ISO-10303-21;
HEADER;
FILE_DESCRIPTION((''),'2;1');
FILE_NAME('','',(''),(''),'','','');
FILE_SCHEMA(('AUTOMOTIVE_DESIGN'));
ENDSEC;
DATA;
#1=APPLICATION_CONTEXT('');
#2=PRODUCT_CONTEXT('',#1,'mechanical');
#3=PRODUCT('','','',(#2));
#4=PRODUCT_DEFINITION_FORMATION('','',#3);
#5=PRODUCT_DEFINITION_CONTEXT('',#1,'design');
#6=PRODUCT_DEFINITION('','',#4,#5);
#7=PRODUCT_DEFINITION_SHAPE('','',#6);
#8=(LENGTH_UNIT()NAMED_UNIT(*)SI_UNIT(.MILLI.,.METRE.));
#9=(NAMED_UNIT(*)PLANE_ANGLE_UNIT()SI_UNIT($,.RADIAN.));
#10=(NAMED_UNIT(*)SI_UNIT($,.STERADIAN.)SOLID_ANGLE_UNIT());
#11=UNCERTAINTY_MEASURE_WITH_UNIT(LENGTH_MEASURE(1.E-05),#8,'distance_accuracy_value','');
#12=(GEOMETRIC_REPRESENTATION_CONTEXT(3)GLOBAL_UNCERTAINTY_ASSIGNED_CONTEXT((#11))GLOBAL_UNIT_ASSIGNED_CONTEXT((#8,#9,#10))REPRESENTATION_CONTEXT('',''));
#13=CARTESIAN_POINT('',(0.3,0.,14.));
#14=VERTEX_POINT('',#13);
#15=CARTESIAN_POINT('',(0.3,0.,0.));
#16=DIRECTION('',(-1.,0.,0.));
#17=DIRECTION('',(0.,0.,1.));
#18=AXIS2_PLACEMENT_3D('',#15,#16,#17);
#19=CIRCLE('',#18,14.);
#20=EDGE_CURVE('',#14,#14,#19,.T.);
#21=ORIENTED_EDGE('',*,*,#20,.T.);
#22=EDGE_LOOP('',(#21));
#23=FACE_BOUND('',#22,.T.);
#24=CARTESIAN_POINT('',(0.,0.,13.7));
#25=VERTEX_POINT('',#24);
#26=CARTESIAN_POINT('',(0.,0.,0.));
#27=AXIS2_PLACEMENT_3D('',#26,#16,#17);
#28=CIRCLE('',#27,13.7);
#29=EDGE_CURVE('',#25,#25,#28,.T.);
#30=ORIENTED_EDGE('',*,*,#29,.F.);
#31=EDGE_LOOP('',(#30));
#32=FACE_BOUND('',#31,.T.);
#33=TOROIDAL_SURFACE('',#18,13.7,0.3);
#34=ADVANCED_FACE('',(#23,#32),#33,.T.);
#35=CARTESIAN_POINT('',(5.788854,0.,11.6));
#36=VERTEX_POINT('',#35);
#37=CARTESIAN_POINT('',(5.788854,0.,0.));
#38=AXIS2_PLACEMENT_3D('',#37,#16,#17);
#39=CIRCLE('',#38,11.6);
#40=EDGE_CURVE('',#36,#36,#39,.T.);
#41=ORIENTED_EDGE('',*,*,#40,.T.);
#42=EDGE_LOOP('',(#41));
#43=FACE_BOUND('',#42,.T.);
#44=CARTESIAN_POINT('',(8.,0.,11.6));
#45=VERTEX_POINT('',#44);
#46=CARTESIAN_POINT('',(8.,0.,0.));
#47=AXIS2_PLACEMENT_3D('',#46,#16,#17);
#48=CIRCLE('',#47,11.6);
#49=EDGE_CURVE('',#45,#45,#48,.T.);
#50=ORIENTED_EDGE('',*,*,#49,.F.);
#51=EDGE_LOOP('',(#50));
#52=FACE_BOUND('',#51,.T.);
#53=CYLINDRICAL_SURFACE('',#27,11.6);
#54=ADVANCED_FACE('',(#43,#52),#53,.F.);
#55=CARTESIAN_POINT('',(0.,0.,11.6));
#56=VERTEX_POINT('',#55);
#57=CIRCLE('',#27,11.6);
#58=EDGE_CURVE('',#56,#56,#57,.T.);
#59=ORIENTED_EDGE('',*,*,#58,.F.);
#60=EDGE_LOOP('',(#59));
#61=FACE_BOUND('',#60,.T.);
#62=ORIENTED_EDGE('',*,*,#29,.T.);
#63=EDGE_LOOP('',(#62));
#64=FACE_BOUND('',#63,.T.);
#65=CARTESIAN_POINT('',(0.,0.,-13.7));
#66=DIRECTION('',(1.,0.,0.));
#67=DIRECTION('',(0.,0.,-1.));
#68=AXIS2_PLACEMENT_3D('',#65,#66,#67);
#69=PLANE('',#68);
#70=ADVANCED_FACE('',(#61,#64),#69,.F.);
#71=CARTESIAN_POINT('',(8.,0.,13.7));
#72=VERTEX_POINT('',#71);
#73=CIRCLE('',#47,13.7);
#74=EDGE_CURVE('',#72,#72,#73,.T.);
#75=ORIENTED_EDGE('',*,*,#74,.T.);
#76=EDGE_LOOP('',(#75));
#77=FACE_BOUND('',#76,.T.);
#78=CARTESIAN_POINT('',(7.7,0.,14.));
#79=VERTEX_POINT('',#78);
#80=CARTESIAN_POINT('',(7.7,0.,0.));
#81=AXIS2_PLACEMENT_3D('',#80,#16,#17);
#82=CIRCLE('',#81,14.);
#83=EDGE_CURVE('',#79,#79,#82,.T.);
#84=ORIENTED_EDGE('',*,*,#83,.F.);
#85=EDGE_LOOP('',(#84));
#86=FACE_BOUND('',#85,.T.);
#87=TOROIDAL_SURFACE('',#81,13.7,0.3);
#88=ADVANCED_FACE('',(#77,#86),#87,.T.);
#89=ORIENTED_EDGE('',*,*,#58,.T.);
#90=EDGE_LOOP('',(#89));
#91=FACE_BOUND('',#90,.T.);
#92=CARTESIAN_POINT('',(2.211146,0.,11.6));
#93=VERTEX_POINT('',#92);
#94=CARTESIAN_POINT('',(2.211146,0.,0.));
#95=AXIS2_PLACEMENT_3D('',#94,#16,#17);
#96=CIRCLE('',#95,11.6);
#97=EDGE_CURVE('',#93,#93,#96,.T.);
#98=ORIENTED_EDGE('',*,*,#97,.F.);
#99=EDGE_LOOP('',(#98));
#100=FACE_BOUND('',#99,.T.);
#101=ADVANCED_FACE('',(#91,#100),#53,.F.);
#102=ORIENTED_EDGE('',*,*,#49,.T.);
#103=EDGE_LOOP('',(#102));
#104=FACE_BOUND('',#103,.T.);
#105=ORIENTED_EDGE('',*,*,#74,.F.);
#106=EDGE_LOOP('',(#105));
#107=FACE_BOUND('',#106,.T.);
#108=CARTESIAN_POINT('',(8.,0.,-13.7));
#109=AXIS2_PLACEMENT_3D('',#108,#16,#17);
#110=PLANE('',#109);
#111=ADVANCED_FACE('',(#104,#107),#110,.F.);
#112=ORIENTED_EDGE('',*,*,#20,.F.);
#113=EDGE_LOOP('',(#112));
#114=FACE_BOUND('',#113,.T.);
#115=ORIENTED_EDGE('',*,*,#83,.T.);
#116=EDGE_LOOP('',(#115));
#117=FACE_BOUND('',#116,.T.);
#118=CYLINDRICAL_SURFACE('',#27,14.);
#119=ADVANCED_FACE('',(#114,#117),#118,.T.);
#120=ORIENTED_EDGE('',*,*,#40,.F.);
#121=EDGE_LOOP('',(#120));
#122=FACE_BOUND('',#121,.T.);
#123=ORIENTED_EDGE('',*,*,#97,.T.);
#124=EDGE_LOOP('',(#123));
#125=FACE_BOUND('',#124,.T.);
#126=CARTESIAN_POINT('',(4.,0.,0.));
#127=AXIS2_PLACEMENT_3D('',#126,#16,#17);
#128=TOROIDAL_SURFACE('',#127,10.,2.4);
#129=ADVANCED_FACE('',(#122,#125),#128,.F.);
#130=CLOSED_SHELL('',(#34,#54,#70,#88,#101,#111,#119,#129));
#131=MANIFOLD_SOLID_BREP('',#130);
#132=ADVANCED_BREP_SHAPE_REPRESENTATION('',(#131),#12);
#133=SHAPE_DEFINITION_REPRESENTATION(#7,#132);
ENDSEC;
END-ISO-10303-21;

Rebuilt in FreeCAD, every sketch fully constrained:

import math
import FreeCAD as App
import Part
import Sketcher
from FreeCAD import Vector
Q = App.Units.Quantity

doc = App.newDocument("Part")
body = doc.addObject("PartDesign::Body", "Body")

sketch1 = body.newObject("Sketcher::SketchObject", "Sketch")
sketch1.AttachmentSupport = (doc.getObject("XZ_Plane"), [""])
sketch1.MapMode = "FlatFace"
sketch1.addGeometry([
    Part.LineSegment(Vector(0, -13.7, 0), Vector(0, -11.6, 0)),
    Part.LineSegment(Vector(0, -11.6, 0), Vector(2.21, -11.6, 0)),
    Part.ArcOfCircle(Part.Circle(Vector(4, -10, 0), Vector(0, 0, 1), 2.4), math.radians(-138), math.radians(-42)),
    Part.LineSegment(Vector(5.79, -11.6, 0), Vector(8, -11.6, 0)),
    Part.LineSegment(Vector(8, -11.6, 0), Vector(8, -13.7, 0)),
    Part.ArcOfCircle(Part.Circle(Vector(7.7, -13.7, 0), Vector(0, 0, 1), 0.3), math.radians(-90), math.radians(0)),
    Part.LineSegment(Vector(7.7, -14, 0), Vector(0.3, -14, 0)),
    Part.ArcOfCircle(Part.Circle(Vector(0.3, -13.7, 0), Vector(0, 0, 1), 0.3), math.radians(-180), math.radians(-90)),
], False)
sketch1.addConstraint([
    Sketcher.Constraint("Coincident", 0, 2, 1, 1),
    Sketcher.Constraint("Coincident", 1, 2, 2, 1),
    Sketcher.Constraint("Coincident", 2, 2, 3, 1),
    Sketcher.Constraint("Coincident", 3, 2, 4, 1),
    Sketcher.Constraint("Tangent", 4, 2, 5, 2),
    Sketcher.Constraint("Tangent", 5, 1, 6, 1),
    Sketcher.Constraint("Tangent", 6, 2, 7, 2),
    Sketcher.Constraint("Tangent", 7, 1, 0, 1),
    Sketcher.Constraint("Vertical", 0),
    Sketcher.Constraint("Horizontal", 1),
    Sketcher.Constraint("Horizontal", 3),
    Sketcher.Constraint("Vertical", 4),
    Sketcher.Constraint("Horizontal", 6),
    Sketcher.Constraint("Equal", 5, 7),
    Sketcher.Constraint("PointOnObject", 0, 2, -2),
    Sketcher.Constraint("Horizontal", 1, 2, 2, 2),
    Sketcher.Constraint("Equal", 1, 3),
    Sketcher.Constraint("Radius", 2, Q("2.4 mm")),
    Sketcher.Constraint("Radius", 5, Q("0.3 mm")),
    Sketcher.Constraint("DistanceX", 6, 2, 6, 1, Q("7.4 mm")),
    Sketcher.Constraint("DistanceY", 0, 1, 0, 2, Q("2.1 mm")),
    Sketcher.Constraint("DistanceY", 2, 3, -1, 1, Q("10 mm")),
    Sketcher.Constraint("DistanceY", 5, 1, -1, 1, Q("14 mm")),
])
revolution = body.newObject("PartDesign::Revolution", "Revolution")
revolution.Profile = sketch1
revolution.ReferenceAxis = (sketch1, ["H_Axis"])
revolution.Angle = 360

doc.recompute()
